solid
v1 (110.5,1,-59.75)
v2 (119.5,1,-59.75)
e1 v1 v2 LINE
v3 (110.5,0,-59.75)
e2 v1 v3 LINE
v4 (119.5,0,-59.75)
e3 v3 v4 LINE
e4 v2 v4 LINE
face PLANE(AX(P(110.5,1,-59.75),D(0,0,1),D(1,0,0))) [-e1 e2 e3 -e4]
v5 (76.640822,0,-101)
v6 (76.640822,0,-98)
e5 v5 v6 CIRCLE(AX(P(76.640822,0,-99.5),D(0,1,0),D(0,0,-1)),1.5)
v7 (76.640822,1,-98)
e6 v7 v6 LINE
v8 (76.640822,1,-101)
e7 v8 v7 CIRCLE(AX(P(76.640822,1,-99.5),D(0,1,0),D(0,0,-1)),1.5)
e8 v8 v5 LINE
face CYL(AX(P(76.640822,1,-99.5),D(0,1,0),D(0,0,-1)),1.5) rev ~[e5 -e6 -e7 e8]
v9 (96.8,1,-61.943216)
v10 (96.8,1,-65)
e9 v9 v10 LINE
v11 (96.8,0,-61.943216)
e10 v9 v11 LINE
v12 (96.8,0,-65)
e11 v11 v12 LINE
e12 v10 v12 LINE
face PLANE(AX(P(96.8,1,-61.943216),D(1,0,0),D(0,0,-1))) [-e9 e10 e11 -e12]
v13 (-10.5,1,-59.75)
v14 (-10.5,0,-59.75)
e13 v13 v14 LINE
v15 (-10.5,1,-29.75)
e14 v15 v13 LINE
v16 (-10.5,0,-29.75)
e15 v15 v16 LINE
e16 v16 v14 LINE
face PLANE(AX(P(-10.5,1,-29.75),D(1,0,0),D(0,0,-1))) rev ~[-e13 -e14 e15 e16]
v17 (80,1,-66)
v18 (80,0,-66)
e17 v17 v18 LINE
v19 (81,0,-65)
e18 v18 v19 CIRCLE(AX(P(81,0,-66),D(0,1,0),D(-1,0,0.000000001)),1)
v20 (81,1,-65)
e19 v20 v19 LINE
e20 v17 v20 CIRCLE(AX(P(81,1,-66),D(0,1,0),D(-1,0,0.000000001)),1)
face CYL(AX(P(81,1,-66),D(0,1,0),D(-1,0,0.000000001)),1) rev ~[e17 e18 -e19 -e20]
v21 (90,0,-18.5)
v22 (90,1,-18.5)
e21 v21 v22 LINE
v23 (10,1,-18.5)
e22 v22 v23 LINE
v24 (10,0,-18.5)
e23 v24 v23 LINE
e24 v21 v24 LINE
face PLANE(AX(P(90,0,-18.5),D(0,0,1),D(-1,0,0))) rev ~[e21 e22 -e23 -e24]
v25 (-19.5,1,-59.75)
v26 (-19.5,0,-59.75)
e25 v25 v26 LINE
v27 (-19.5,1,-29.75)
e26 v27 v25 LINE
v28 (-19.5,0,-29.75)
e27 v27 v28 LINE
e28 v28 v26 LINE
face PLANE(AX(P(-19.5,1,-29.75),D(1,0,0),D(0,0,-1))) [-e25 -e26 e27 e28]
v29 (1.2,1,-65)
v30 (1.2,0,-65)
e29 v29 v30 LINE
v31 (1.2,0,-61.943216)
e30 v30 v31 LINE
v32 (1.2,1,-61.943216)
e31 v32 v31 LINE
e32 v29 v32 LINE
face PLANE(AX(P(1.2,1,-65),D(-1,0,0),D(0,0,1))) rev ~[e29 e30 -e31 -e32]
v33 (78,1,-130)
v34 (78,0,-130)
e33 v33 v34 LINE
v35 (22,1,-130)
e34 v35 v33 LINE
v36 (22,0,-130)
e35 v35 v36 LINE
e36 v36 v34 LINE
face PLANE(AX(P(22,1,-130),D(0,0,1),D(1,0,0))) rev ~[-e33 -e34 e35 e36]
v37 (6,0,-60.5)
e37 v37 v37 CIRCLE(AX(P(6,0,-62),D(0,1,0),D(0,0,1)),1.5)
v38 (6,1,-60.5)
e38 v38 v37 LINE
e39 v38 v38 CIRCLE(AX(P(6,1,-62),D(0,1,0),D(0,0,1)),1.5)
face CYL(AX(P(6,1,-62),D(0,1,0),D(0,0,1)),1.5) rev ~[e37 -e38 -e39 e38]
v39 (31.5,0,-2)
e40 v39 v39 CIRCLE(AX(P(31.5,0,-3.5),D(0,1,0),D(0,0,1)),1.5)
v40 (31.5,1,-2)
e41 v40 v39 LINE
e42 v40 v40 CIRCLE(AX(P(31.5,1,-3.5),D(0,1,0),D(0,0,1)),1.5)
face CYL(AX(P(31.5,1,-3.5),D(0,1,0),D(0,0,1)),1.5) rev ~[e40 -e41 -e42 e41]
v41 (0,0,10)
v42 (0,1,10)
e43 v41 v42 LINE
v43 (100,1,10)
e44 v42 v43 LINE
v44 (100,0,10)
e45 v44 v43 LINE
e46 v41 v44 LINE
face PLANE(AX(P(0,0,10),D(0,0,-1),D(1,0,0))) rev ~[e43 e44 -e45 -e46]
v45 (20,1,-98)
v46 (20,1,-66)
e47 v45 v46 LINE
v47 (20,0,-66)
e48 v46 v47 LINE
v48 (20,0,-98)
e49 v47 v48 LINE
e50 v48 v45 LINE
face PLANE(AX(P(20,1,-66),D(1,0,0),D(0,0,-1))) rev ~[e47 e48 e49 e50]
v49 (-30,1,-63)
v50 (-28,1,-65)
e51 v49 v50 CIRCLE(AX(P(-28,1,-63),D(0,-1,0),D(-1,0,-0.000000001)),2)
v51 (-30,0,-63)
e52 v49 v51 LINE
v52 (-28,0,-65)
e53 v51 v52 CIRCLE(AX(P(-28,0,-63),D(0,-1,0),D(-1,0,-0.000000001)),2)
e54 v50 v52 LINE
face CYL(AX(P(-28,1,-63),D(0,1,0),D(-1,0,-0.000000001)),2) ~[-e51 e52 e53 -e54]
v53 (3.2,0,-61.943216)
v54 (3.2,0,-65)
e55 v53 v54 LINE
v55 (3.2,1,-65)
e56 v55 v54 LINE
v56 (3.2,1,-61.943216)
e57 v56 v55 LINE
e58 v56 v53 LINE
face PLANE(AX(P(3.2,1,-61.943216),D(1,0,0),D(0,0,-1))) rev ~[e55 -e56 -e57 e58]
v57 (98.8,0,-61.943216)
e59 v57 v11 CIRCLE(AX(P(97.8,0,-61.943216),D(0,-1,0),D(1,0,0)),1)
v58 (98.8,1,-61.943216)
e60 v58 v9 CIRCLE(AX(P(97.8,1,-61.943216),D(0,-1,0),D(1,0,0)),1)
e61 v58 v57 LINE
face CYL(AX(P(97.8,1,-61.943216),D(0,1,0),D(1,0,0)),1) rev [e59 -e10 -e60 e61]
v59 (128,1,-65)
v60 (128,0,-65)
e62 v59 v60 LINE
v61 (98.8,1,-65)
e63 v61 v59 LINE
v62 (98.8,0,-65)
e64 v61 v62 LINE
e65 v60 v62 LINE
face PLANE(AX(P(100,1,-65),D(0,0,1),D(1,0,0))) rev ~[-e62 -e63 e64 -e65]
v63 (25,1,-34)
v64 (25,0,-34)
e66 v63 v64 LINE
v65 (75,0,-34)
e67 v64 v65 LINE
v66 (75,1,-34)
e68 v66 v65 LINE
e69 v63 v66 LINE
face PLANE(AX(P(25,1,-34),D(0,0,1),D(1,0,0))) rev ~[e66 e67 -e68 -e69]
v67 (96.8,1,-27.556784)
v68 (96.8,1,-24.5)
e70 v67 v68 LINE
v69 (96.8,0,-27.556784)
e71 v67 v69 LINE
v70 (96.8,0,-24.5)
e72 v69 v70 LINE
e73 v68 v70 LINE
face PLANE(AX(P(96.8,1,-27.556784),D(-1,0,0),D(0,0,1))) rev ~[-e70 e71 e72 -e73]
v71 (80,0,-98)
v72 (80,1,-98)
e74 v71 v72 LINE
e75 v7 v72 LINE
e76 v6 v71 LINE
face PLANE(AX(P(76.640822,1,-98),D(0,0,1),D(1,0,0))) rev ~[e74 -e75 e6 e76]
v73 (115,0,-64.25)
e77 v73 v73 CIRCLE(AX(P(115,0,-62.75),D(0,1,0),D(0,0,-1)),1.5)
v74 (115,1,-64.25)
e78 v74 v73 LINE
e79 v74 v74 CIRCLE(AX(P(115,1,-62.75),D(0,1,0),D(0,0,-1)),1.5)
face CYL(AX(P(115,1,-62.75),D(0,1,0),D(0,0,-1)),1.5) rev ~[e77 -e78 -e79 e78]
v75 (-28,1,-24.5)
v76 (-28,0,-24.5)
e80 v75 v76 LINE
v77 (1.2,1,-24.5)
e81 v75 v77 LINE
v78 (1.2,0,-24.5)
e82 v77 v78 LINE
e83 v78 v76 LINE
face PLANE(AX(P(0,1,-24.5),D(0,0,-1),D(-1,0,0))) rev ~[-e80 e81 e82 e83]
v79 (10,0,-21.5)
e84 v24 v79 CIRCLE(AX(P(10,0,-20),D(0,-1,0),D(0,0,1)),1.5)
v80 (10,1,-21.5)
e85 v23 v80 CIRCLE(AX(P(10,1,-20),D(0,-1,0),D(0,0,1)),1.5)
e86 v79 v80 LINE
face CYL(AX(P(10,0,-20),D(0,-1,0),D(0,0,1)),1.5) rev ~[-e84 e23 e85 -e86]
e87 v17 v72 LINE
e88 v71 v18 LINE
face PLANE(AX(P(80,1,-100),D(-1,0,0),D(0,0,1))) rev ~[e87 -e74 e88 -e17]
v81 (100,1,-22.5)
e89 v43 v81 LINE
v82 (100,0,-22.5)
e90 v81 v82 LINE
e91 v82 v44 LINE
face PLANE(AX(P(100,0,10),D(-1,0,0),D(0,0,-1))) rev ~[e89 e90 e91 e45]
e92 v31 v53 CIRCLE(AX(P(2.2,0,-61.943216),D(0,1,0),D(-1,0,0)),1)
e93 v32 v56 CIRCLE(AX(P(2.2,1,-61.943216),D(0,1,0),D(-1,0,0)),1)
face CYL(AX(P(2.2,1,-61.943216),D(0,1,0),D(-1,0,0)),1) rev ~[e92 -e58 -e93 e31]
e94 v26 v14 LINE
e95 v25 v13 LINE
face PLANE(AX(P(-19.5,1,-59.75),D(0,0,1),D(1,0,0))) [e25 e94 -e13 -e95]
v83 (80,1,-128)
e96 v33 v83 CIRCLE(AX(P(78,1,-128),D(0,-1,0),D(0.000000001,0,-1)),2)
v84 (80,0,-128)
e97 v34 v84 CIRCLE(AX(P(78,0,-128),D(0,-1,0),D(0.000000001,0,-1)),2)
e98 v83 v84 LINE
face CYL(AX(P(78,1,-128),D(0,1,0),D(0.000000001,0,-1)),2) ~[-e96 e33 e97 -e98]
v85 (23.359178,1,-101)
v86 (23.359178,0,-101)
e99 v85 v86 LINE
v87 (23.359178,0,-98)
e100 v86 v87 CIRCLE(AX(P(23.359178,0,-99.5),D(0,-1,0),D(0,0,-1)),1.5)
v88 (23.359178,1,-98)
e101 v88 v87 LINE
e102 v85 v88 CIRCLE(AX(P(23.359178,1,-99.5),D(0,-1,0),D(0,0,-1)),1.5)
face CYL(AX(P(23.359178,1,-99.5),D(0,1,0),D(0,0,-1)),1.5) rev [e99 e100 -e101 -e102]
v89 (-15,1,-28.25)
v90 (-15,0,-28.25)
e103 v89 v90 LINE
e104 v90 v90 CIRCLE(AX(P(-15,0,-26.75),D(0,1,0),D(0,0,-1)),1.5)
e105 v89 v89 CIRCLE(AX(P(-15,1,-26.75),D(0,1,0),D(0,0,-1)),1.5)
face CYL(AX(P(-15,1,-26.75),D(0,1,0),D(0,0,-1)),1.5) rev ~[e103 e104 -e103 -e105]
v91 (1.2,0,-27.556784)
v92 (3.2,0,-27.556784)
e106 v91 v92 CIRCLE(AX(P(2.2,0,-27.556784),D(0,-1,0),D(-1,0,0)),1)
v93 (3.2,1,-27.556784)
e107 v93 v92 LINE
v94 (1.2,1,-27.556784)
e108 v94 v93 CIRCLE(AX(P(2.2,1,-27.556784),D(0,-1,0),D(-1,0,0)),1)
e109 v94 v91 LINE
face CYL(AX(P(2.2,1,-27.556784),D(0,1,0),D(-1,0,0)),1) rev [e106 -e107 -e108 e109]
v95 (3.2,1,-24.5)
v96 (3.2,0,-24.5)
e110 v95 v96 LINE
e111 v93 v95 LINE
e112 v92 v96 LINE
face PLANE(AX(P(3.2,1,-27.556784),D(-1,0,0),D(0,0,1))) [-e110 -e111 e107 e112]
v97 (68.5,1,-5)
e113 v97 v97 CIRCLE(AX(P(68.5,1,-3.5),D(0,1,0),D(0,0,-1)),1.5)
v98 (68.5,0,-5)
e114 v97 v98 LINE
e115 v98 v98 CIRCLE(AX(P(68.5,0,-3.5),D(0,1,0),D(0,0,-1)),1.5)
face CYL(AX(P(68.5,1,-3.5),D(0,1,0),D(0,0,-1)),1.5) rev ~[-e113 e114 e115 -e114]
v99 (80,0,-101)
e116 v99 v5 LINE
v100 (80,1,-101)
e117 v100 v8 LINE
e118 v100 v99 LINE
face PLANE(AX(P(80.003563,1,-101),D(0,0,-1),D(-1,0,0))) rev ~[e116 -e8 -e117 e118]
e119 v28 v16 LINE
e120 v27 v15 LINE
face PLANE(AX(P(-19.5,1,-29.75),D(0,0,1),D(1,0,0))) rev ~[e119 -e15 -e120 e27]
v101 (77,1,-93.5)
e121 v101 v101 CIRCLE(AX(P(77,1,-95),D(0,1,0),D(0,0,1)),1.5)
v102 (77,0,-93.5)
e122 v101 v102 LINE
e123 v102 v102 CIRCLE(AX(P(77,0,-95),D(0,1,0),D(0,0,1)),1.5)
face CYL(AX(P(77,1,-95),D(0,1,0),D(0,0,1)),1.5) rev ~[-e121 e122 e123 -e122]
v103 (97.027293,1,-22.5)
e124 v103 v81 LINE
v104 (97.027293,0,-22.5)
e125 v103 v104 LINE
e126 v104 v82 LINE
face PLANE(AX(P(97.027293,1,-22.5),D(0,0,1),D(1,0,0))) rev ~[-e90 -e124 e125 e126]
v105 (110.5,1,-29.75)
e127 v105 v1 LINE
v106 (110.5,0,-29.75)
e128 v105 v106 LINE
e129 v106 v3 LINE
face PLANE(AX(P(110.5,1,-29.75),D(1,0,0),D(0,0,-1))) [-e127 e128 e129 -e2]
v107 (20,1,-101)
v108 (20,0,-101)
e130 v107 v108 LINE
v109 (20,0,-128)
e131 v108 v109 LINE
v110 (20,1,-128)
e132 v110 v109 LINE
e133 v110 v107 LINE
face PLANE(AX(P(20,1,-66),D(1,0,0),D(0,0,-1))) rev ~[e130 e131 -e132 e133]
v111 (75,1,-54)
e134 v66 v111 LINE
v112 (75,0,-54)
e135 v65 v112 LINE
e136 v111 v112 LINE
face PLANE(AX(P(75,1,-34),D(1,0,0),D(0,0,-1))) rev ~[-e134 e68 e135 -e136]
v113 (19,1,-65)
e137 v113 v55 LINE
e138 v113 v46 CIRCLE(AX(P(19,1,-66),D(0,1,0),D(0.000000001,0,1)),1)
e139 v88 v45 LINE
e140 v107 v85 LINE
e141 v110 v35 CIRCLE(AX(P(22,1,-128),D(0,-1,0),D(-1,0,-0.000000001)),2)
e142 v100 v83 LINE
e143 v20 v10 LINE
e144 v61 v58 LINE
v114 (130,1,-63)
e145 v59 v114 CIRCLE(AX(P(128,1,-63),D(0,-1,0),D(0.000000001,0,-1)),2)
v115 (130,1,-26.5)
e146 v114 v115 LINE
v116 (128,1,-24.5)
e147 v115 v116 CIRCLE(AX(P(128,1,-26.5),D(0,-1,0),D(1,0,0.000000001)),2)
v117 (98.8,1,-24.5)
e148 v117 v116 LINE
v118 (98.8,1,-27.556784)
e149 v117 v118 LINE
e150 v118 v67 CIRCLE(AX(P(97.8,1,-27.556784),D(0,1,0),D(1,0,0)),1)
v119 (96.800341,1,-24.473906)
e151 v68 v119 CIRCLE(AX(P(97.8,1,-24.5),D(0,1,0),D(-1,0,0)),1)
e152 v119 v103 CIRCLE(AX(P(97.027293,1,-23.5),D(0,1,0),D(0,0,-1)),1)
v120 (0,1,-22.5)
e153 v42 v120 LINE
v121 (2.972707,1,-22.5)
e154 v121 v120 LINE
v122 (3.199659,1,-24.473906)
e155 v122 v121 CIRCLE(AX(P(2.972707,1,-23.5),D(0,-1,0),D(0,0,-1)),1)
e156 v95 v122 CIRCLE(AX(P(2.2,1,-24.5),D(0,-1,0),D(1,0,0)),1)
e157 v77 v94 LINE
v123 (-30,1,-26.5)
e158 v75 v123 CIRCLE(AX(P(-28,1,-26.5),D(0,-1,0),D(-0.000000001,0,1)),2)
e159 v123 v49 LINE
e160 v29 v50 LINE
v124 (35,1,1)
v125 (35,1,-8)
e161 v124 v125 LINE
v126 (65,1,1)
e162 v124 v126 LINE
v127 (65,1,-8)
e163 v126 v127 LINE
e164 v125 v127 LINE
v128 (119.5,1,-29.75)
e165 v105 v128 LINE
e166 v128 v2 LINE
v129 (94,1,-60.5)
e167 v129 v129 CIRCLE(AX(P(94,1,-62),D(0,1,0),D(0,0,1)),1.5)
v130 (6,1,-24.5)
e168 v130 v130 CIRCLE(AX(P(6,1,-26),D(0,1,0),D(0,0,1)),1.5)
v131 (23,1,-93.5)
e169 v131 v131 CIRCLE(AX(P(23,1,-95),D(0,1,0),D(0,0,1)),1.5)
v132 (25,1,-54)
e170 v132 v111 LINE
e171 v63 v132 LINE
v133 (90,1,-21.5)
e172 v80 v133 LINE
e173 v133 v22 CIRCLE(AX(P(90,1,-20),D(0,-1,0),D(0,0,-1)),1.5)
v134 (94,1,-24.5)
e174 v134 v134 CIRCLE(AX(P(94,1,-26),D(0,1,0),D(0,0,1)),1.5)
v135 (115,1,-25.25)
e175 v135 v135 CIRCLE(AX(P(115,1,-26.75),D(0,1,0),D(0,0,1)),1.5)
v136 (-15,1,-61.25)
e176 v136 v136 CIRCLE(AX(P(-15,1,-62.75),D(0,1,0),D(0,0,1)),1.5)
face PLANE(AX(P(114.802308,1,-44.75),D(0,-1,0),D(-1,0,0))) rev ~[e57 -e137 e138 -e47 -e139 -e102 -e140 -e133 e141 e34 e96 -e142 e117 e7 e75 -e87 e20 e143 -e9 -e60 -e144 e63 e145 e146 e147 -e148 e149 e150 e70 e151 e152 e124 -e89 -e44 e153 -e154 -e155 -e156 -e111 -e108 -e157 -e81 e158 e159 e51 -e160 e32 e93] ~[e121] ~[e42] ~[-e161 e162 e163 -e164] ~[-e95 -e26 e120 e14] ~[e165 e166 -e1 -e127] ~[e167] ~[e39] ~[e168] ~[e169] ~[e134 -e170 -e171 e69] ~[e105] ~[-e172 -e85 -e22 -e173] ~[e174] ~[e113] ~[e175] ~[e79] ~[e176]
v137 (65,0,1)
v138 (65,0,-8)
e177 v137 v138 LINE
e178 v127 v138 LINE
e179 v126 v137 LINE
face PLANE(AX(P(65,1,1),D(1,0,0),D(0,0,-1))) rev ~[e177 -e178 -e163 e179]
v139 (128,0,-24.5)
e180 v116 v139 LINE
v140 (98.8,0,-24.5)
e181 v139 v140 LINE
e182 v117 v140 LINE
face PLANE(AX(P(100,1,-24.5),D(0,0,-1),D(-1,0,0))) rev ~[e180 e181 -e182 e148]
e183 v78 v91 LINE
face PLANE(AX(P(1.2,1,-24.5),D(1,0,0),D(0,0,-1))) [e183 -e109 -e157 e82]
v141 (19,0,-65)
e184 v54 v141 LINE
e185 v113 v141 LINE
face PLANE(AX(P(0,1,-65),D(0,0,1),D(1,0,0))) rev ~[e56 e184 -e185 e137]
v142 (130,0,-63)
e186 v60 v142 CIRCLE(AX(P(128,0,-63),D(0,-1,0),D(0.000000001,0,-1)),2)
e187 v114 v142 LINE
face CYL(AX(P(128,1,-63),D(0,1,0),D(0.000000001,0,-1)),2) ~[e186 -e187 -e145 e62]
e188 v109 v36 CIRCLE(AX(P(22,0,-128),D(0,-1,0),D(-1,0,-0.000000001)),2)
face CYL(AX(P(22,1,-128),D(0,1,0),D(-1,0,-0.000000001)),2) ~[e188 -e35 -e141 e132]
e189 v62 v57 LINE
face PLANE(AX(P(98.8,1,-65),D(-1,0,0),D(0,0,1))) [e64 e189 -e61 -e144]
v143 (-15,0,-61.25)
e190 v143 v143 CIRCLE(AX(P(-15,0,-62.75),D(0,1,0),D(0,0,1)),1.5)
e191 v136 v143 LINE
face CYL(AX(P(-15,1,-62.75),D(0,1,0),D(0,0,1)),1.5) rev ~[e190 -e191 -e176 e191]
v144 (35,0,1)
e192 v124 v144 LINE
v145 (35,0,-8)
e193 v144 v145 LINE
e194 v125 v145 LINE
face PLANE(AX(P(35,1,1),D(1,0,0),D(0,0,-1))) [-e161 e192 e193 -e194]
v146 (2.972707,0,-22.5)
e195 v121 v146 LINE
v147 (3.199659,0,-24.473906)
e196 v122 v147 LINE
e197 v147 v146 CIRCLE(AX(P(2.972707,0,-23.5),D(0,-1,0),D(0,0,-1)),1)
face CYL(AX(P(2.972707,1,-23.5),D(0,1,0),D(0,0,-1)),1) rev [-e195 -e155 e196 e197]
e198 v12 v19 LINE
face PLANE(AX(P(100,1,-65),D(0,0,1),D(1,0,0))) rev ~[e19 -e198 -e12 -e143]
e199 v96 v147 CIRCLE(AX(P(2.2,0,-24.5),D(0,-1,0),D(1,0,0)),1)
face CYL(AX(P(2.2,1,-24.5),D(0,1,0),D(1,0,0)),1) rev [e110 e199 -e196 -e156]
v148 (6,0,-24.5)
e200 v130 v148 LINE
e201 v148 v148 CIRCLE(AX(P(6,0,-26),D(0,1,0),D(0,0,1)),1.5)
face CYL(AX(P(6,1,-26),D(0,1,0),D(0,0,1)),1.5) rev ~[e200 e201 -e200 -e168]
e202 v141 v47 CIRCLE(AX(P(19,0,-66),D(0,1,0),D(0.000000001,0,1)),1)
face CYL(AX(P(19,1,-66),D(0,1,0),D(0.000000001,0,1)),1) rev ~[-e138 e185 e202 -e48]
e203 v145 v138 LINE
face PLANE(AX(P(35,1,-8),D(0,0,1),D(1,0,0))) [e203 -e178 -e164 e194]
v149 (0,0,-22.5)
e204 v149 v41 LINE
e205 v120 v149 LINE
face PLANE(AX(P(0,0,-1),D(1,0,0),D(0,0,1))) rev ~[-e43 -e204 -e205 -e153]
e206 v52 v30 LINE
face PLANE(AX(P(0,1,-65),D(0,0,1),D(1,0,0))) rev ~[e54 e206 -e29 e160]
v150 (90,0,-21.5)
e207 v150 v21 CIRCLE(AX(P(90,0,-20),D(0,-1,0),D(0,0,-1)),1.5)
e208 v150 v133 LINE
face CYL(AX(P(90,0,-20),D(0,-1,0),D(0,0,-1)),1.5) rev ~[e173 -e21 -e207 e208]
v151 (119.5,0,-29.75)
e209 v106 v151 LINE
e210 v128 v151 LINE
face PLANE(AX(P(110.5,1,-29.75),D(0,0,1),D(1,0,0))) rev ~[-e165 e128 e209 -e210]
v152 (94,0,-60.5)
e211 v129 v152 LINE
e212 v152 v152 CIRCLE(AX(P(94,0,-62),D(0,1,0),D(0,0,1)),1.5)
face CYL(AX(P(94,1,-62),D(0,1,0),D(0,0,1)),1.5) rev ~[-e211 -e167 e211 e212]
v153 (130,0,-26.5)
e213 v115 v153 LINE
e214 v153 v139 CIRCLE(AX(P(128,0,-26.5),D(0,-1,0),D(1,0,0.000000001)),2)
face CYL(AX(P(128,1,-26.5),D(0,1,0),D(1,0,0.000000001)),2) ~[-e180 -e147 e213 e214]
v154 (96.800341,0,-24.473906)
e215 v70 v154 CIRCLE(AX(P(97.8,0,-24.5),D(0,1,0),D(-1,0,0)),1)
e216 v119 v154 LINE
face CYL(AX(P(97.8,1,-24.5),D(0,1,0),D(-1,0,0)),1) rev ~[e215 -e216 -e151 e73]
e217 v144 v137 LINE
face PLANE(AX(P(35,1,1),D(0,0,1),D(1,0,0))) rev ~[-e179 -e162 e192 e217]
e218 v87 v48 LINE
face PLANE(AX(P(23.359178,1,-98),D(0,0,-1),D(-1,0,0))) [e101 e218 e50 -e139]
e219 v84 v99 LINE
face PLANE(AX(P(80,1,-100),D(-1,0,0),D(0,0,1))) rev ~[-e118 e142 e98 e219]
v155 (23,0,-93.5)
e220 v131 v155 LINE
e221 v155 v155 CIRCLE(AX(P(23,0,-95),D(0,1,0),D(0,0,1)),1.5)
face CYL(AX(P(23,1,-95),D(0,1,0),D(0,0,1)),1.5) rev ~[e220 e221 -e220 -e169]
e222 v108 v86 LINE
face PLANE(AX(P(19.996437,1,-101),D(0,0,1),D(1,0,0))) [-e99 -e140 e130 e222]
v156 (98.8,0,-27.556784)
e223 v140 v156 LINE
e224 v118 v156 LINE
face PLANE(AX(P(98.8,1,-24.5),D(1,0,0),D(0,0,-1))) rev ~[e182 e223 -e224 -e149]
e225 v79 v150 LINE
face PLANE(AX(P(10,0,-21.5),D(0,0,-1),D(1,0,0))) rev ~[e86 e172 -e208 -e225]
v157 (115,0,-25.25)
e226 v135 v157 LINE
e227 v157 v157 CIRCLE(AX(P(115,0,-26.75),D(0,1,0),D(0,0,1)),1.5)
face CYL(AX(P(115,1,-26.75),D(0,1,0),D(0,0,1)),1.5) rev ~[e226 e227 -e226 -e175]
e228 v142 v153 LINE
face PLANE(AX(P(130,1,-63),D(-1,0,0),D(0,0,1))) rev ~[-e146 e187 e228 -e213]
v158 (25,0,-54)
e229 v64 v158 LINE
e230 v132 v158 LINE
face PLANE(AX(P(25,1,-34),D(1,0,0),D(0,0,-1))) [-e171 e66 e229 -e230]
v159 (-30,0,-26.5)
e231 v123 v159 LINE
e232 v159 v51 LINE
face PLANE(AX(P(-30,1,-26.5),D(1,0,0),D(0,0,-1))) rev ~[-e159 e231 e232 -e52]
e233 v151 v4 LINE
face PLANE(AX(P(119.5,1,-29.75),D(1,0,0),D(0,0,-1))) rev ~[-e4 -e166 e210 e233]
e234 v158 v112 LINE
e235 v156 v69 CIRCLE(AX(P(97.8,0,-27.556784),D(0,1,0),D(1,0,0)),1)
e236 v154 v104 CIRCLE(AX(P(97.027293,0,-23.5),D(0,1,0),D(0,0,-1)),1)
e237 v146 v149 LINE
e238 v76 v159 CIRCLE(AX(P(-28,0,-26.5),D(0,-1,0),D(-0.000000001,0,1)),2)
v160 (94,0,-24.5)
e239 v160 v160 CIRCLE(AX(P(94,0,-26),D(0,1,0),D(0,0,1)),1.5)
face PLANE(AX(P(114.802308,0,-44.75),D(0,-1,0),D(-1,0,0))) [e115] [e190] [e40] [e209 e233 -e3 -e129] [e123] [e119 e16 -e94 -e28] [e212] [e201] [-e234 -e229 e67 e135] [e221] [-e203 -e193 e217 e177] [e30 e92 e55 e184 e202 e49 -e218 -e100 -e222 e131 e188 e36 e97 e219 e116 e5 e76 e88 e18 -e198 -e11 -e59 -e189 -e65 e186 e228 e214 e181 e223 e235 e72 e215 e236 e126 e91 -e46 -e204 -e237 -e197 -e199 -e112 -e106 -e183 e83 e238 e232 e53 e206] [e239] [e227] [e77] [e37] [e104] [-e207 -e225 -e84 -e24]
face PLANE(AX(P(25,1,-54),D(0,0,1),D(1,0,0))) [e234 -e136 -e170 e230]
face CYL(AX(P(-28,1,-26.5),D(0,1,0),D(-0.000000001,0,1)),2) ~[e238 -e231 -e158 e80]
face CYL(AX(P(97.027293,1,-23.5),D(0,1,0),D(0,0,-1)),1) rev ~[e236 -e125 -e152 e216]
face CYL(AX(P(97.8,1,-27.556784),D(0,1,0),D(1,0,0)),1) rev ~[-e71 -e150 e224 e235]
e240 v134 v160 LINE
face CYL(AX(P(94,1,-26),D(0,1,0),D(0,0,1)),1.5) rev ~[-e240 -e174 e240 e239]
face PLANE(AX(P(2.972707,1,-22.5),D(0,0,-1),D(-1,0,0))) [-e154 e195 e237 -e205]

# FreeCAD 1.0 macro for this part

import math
import FreeCAD as App
import Part
import Sketcher
from FreeCAD import Vector


def add_polygon(sketch, points):
    """Adds a closed chain of lines whose ends are joined by coincident constraints."""
    first, n = sketch.GeometryCount, len(points)
    for a, b in zip(points, points[1:] + points[:1]):
        sketch.addGeometry(Part.LineSegment(App.Vector(*a, 0), App.Vector(*b, 0)), False)
    for i in range(n):
        sketch.addConstraint(Sketcher.Constraint("Coincident", first + i, 2, first + (i + 1) % n, 1))

doc = App.newDocument("Part")
body = doc.addObject("PartDesign::Body", "Body")

sketch1 = doc.addObject("Sketcher::SketchObject", "Sketch")
body.addObject(sketch1)
sketch1.AttachmentSupport = (doc.XZ_Plane, [""])
sketch1.MapMode = "FlatFace"
sketch1.addGeometry([
    Part.LineSegment(Vector(1, 0, 0), Vector(99, 0, 0)),
    Part.ArcOfCircle(Part.Circle(Vector(99, -1, 0), Vector(0, 0, 1), 1), math.radians(0), math.radians(90)),
    Part.LineSegment(Vector(100, -1, 0), Vector(100, -99, 0)),
    Part.ArcOfCircle(Part.Circle(Vector(99, -99, 0), Vector(0, 0, 1), 1), math.radians(-90), math.radians(0)),
    Part.LineSegment(Vector(99, -100, 0), Vector(1, -100, 0)),
    Part.ArcOfCircle(Part.Circle(Vector(1, -99, 0), Vector(0, 0, 1), 1), math.radians(-180), math.radians(-90)),
    Part.LineSegment(Vector(0, -99, 0), Vector(0, -1, 0)),
    Part.ArcOfCircle(Part.Circle(Vector(1, -1, 0), Vector(0, 0, 1), 1), math.radians(90), math.radians(180)),
    Part.ArcOfCircle(Part.Circle(Vector(10, -20, 0), Vector(0, 0, 1), 1.5), math.radians(90), math.radians(270)),
    Part.LineSegment(Vector(10, -21.5, 0), Vector(90, -21.5, 0)),
    Part.ArcOfCircle(Part.Circle(Vector(90, -20, 0), Vector(0, 0, 1), 1.5), math.radians(-90), math.radians(90)),
    Part.LineSegment(Vector(90, -18.5, 0), Vector(10, -18.5, 0)),
], False)
sketch1.addConstraint([
    Sketcher.Constraint("Tangent", 0, 2, 1, 2),
    Sketcher.Constraint("Tangent", 1, 1, 2, 1),
    Sketcher.Constraint("Tangent", 2, 2, 3, 2),
    Sketcher.Constraint("Tangent", 3, 1, 4, 1),
    Sketcher.Constraint("Tangent", 4, 2, 5, 2),
    Sketcher.Constraint("Tangent", 5, 1, 6, 1),
    Sketcher.Constraint("Tangent", 6, 2, 7, 2),
    Sketcher.Constraint("Tangent", 7, 1, 0, 1),
    Sketcher.Constraint("Tangent", 8, 2, 9, 1),
    Sketcher.Constraint("Tangent", 9, 2, 10, 1),
    Sketcher.Constraint("Tangent", 10, 2, 11, 1),
    Sketcher.Constraint("Tangent", 11, 2, 8, 1),
    Sketcher.Constraint("Horizontal", 0),
    Sketcher.Constraint("Vertical", 2),
    Sketcher.Constraint("Horizontal", 4),
    Sketcher.Constraint("Vertical", 6),
    Sketcher.Constraint("Horizontal", 9),
    Sketcher.Constraint("Horizontal", 11),
    Sketcher.Constraint("Equal", 1, 3),
    Sketcher.Constraint("Equal", 3, 5),
    Sketcher.Constraint("Equal", 5, 7),
    Sketcher.Constraint("PointOnObject", 0, 2, -1),
    Sketcher.Constraint("PointOnObject", 5, 1, -2),
    Sketcher.Constraint("Equal", 4, 2),
    Sketcher.Constraint("Radius", 1, 1.0),
    Sketcher.Constraint("Radius", 8, 1.5),
    Sketcher.Constraint("DistanceX", 0, 1, 0, 2, 98.0),
    Sketcher.Constraint("DistanceX", 9, 1, 9, 2, 80.0),
    Sketcher.Constraint("DistanceX", -1, 1, 8, 3, 10.0),
    Sketcher.Constraint("DistanceY", 8, 3, -1, 1, 20.0),
])
pad1 = doc.addObject("PartDesign::Pad", "Pad")
body.addObject(pad1)
pad1.Profile = sketch1
pad1.Length = 1
pad1.Reversed = True

sketch2 = doc.addObject("Sketcher::SketchObject", "Sketch001")
body.addObject(sketch2)
sketch2.AttachmentSupport = (doc.XZ_Plane, [""])
sketch2.MapMode = "FlatFace"
sketch2.AttachmentOffset = App.Placement(Vector(0, 0, -1), App.Rotation())
sketch2.addGeometry([
    Part.LineSegment(Vector(0, -100, 0), Vector(0, -65, 0)),
    Part.LineSegment(Vector(0, -65, 0), Vector(19, -65, 0)),
    Part.ArcOfCircle(Part.Circle(Vector(19, -66, 0), Vector(0, 0, 1), 1), math.radians(0), math.radians(90)),
    Part.LineSegment(Vector(20, -66, 0), Vector(20, -100, 0)),
    Part.LineSegment(Vector(20, -100, 0), Vector(0, -100, 0)),
    Part.LineSegment(Vector(100, -65, 0), Vector(100, -100, 0)),
    Part.LineSegment(Vector(100, -100, 0), Vector(80, -100, 0)),
    Part.LineSegment(Vector(80, -100, 0), Vector(80, -66, 0)),
    Part.ArcOfCircle(Part.Circle(Vector(81, -66, 0), Vector(0, 0, 1), 1), math.radians(90), math.radians(180)),
    Part.LineSegment(Vector(81, -65, 0), Vector(100, -65, 0)),
], False)
sketch2.addConstraint([
    Sketcher.Constraint("Coincident", 0, 2, 1, 1),
    Sketcher.Constraint("Tangent", 1, 2, 2, 2),
    Sketcher.Constraint("Tangent", 2, 1, 3, 1),
    Sketcher.Constraint("Coincident", 3, 2, 4, 1),
    Sketcher.Constraint("Coincident", 4, 2, 0, 1),
    Sketcher.Constraint("Coincident", 5, 2, 6, 1),
    Sketcher.Constraint("Coincident", 6, 2, 7, 1),
    Sketcher.Constraint("Tangent", 7, 2, 8, 2),
    Sketcher.Constraint("Tangent", 8, 1, 9, 1),
    Sketcher.Constraint("Coincident", 9, 2, 5, 1),
    Sketcher.Constraint("Vertical", 0),
    Sketcher.Constraint("Horizontal", 1),
    Sketcher.Constraint("Vertical", 3),
    Sketcher.Constraint("Horizontal", 4),
    Sketcher.Constraint("Vertical", 5),
    Sketcher.Constraint("Horizontal", 6),
    Sketcher.Constraint("Vertical", 7),
    Sketcher.Constraint("Horizontal", 9),
    Sketcher.Constraint("Equal", 2, 8),
    Sketcher.Constraint("PointOnObject", 0, 2, -2),
    Sketcher.Constraint("Horizontal", 2, 3, 8, 3),
    Sketcher.Constraint("Horizontal", 4, 2, 5, 2),
    Sketcher.Constraint("Equal", 4, 6),
    Sketcher.Constraint("Radius", 2, 1.0),
    Sketcher.Constraint("DistanceX", 1, 1, 1, 2, 19.0),
    Sketcher.Constraint("DistanceY", 0, 1, 0, 2, 35.0),
    Sketcher.Constraint("DistanceY", 2, 3, -1, 1, 66.0),
    Sketcher.Constraint("DistanceX", -1, 1, 8, 3, 81.0),
])
pocket1 = doc.addObject("PartDesign::Pocket", "Pocket")
body.addObject(pocket1)
pocket1.Profile = sketch2
pocket1.Length = 1
pocket1.Reversed = True

sketch3 = doc.addObject("Sketcher::SketchObject", "Sketch002")
body.addObject(sketch3)
sketch3.AttachmentSupport = (doc.XZ_Plane, [""])
sketch3.MapMode = "FlatFace"
sketch3.AttachmentOffset = App.Placement(Vector(0, 0, -1), App.Rotation())
sketch3.addGeometry([
    Part.Circle(Vector(6, -26, 0), Vector(0, 0, 1), 1.5),
    Part.Circle(Vector(23, -95, 0), Vector(0, 0, 1), 1.5),
    Part.Circle(Vector(77, -95, 0), Vector(0, 0, 1), 1.5),
    Part.Circle(Vector(94, -26, 0), Vector(0, 0, 1), 1.5),
    Part.Circle(Vector(6, -62, 0), Vector(0, 0, 1), 1.5),
    Part.Circle(Vector(94, -62, 0), Vector(0, 0, 1), 1.5),
], False)
sketch3.addConstraint([
    Sketcher.Constraint("Equal", 0, 1),
    Sketcher.Constraint("Equal", 1, 2),
    Sketcher.Constraint("Equal", 2, 3),
    Sketcher.Constraint("Equal", 3, 4),
    Sketcher.Constraint("Equal", 4, 5),
    Sketcher.Constraint("Horizontal", 1, 3, 2, 3),
    Sketcher.Constraint("Horizontal", 0, 3, 3, 3),
    Sketcher.Constraint("Horizontal", 4, 3, 5, 3),
    Sketcher.Constraint("Vertical", 0, 3, 4, 3),
    Sketcher.Constraint("Vertical", 3, 3, 5, 3),
    Sketcher.Constraint("Diameter", 0, 3.0),
    Sketcher.Constraint("DistanceX", -1, 1, 0, 3, 6.0),
    Sketcher.Constraint("DistanceY", 0, 3, -1, 1, 26.0),
    Sketcher.Constraint("DistanceX", -1, 1, 1, 3, 23.0),
    Sketcher.Constraint("DistanceY", 1, 3, -1, 1, 95.0),
    Sketcher.Constraint("DistanceX", -1, 1, 2, 3, 77.0),
    Sketcher.Constraint("DistanceX", -1, 1, 3, 3, 94.0),
    Sketcher.Constraint("DistanceY", 4, 3, -1, 1, 62.0),
])
pocket2 = doc.addObject("PartDesign::Pocket", "Pocket001")
body.addObject(pocket2)
pocket2.Profile = sketch3
pocket2.Length = 1
pocket2.Reversed = True

sketch4 = doc.addObject("Sketcher::SketchObject", "Sketch003")
body.addObject(sketch4)
sketch4.AttachmentSupport = (doc.XZ_Plane, [""])
sketch4.MapMode = "FlatFace"
sketch4.addGeometry([
    Part.LineSegment(Vector(0, -1, 0), Vector(0, 10, 0)),
    Part.LineSegment(Vector(0, 10, 0), Vector(100, 10, 0)),
    Part.LineSegment(Vector(100, 10, 0), Vector(100, -1, 0)),
    Part.ArcOfCircle(Part.Circle(Vector(99, -1, 0), Vector(0, 0, 1), 1), math.radians(0), math.radians(90)),
    Part.LineSegment(Vector(99, 0, 0), Vector(1, 0, 0)),
    Part.ArcOfCircle(Part.Circle(Vector(1, -1, 0), Vector(0, 0, 1), 1), math.radians(90), math.radians(180)),
], False)
sketch4.addConstraint([
    Sketcher.Constraint("Coincident", 0, 2, 1, 1),
    Sketcher.Constraint("Coincident", 1, 2, 2, 1),
    Sketcher.Constraint("Tangent", 2, 2, 3, 1),
    Sketcher.Constraint("Tangent", 3, 2, 4, 1),
    Sketcher.Constraint("Tangent", 4, 2, 5, 1),
    Sketcher.Constraint("Tangent", 5, 2, 0, 1),
    Sketcher.Constraint("Vertical", 0),
    Sketcher.Constraint("Horizontal", 1),
    Sketcher.Constraint("Vertical", 2),
    Sketcher.Constraint("Horizontal", 4),
    Sketcher.Constraint("Equal", 3, 5),
    Sketcher.Constraint("PointOnObject", 0, 2, -2),
    Sketcher.Constraint("PointOnObject", 3, 2, -1),
    Sketcher.Constraint("Radius", 3, 1.0),
    Sketcher.Constraint("DistanceX", 1, 1, 1, 2, 100.0),
    Sketcher.Constraint("DistanceY", 0, 1, 0, 2, 11.0),
])
pad2 = doc.addObject("PartDesign::Pad", "Pad001")
body.addObject(pad2)
pad2.Profile = sketch4
pad2.Length = 1
pad2.Reversed = True

sketch5 = doc.addObject("Sketcher::SketchObject", "Sketch004")
body.addObject(sketch5)
sketch5.AttachmentSupport = (doc.XZ_Plane, [""])
sketch5.MapMode = "FlatFace"
sketch5.AttachmentOffset = App.Placement(Vector(0, 0, -1), App.Rotation())
sketch5.addGeometry([
    Part.LineSegment(Vector(128, -65, 0), Vector(100, -65, 0)),
    Part.LineSegment(Vector(100, -65, 0), Vector(100, -24.5, 0)),
    Part.LineSegment(Vector(100, -24.5, 0), Vector(128, -24.5, 0)),
    Part.ArcOfCircle(Part.Circle(Vector(128, -26.5, 0), Vector(0, 0, 1), 2), math.radians(0), math.radians(90)),
    Part.LineSegment(Vector(130, -26.5, 0), Vector(130, -63, 0)),
    Part.ArcOfCircle(Part.Circle(Vector(128, -63, 0), Vector(0, 0, 1), 2), math.radians(-90), math.radians(0)),
    Part.LineSegment(Vector(-28, -24.5, 0), Vector(0, -24.5, 0)),
    Part.LineSegment(Vector(0, -24.5, 0), Vector(0, -65, 0)),
    Part.LineSegment(Vector(0, -65, 0), Vector(-28, -65, 0)),
    Part.ArcOfCircle(Part.Circle(Vector(-28, -63, 0), Vector(0, 0, 1), 2), math.radians(-180), math.radians(-90)),
    Part.LineSegment(Vector(-30, -63, 0), Vector(-30, -26.5, 0)),
    Part.ArcOfCircle(Part.Circle(Vector(-28, -26.5, 0), Vector(0, 0, 1), 2), math.radians(90), math.radians(180)),
    Part.LineSegment(Vector(20, -100, 0), Vector(80, -100, 0)),
    Part.LineSegment(Vector(80, -100, 0), Vector(80, -128, 0)),
    Part.ArcOfCircle(Part.Circle(Vector(78, -128, 0), Vector(0, 0, 1), 2), math.radians(-90), math.radians(0)),
    Part.LineSegment(Vector(78, -130, 0), Vector(22, -130, 0)),
    Part.ArcOfCircle(Part.Circle(Vector(22, -128, 0), Vector(0, 0, 1), 2), math.radians(-180), math.radians(-90)),
    Part.LineSegment(Vector(20, -128, 0), Vector(20, -100, 0)),
], False)
sketch5.addConstraint([
    Sketcher.Constraint("Coincident", 0, 2, 1, 1),
    Sketcher.Constraint("Coincident", 1, 2, 2, 1),
    Sketcher.Constraint("Tangent", 2, 2, 3, 2),
    Sketcher.Constraint("Tangent", 3, 1, 4, 1),
    Sketcher.Constraint("Tangent", 4, 2, 5, 2),
    Sketcher.Constraint("Tangent", 5, 1, 0, 1),
    Sketcher.Constraint("Coincident", 6, 2, 7, 1),
    Sketcher.Constraint("Coincident", 7, 2, 8, 1),
    Sketcher.Constraint("Tangent", 8, 2, 9, 2),
    Sketcher.Constraint("Tangent", 9, 1, 10, 1),
    Sketcher.Constraint("Tangent", 10, 2, 11, 2),
    Sketcher.Constraint("Tangent", 11, 1, 6, 1),
    Sketcher.Constraint("Coincident", 12, 2, 13, 1),
    Sketcher.Constraint("Tangent", 13, 2, 14, 2),
    Sketcher.Constraint("Tangent", 14, 1, 15, 1),
    Sketcher.Constraint("Tangent", 15, 2, 16, 2),
    Sketcher.Constraint("Tangent", 16, 1, 17, 1),
    Sketcher.Constraint("Coincident", 17, 2, 12, 1),
    Sketcher.Constraint("Horizontal", 0),
    Sketcher.Constraint("Vertical", 1),
    Sketcher.Constraint("Horizontal", 2),
    Sketcher.Constraint("Vertical", 4),
    Sketcher.Constraint("Horizontal", 6),
    Sketcher.Constraint("Vertical", 7),
    Sketcher.Constraint("Horizontal", 8),
    Sketcher.Constraint("Vertical", 10),
    Sketcher.Constraint("Horizontal", 12),
    Sketcher.Constraint("Vertical", 13),
    Sketcher.Constraint("Horizontal", 15),
    Sketcher.Constraint("Vertical", 17),
    Sketcher.Constraint("Equal", 3, 5),
    Sketcher.Constraint("Equal", 5, 9),
    Sketcher.Constraint("Equal", 9, 11),
    Sketcher.Constraint("Equal", 11, 14),
    Sketcher.Constraint("Equal", 14, 16),
    Sketcher.Constraint("PointOnObject", 6, 2, -2),
    Sketcher.Constraint("Horizontal", 5, 3, 9, 3),
    Sketcher.Constraint("Horizontal", 3, 3, 11, 3),
    Sketcher.Constraint("Equal", 2, 6),
    Sketcher.Constraint("Equal", 8, 13),
    Sketcher.Constraint("Radius", 3, 2.0),
    Sketcher.Constraint("DistanceX", 0, 2, 0, 1, 28.0),
    Sketcher.Constraint("DistanceX", 12, 1, 12, 2, 60.0),
    Sketcher.Constraint("DistanceY", 1, 1, 1, 2, 40.5),
    Sketcher.Constraint("DistanceX", -1, 1, 3, 3, 128.0),
    Sketcher.Constraint("DistanceY", 5, 3, -1, 1, 63.0),
    Sketcher.Constraint("DistanceX", -1, 1, 14, 3, 78.0),
    Sketcher.Constraint("DistanceY", 14, 3, -1, 1, 128.0),
])
pad3 = doc.addObject("PartDesign::Pad", "Pad002")
body.addObject(pad3)
pad3.Profile = sketch5
pad3.Length = 1

sketch6 = doc.addObject("Sketcher::SketchObject", "Sketch005")
body.addObject(sketch6)
sketch6.AttachmentSupport = (doc.XZ_Plane, [""])
sketch6.MapMode = "FlatFace"
sketch6.AttachmentOffset = App.Placement(Vector(0, 0, -1), App.Rotation())
sketch6.addGeometry(Part.Circle(Vector(31.5, -3.5, 0), Vector(0, 0, 1), 1.5), False)
sketch6.addGeometry(Part.Circle(Vector(-15, -62.8, 0), Vector(0, 0, 1), 1.5), False)
sketch6.addGeometry(Part.Circle(Vector(-15, -26.8, 0), Vector(0, 0, 1), 1.5), False)
sketch6.addGeometry(Part.Circle(Vector(68.5, -3.5, 0), Vector(0, 0, 1), 1.5), False)
sketch6.addGeometry(Part.Circle(Vector(115, -26.8, 0), Vector(0, 0, 1), 1.5), False)
sketch6.addGeometry(Part.Circle(Vector(115, -62.8, 0), Vector(0, 0, 1), 1.5), False)
add_polygon(sketch6, [(110.5, -59.8), (110.5, -29.8), (119.5, -29.8), (119.5, -59.8)])
add_polygon(sketch6, [(-19.5, -59.8), (-19.5, -29.8), (-10.5, -29.8), (-10.5, -59.8)])
add_polygon(sketch6, [(35, -8), (35, 1), (65, 1), (65, -8)])
sketch6.addConstraint([
    Sketcher.Constraint("Vertical", 6),
    Sketcher.Constraint("Horizontal", 7),
    Sketcher.Constraint("Vertical", 8),
    Sketcher.Constraint("Horizontal", 9),
    Sketcher.Constraint("Vertical", 10),
    Sketcher.Constraint("Horizontal", 11),
    Sketcher.Constraint("Vertical", 12),
    Sketcher.Constraint("Horizontal", 13),
    Sketcher.Constraint("Vertical", 14),
    Sketcher.Constraint("Horizontal", 15),
    Sketcher.Constraint("Vertical", 16),
    Sketcher.Constraint("Horizontal", 17),
    Sketcher.Constraint("Equal", 0, 1),
    Sketcher.Constraint("Equal", 1, 2),
    Sketcher.Constraint("Equal", 2, 3),
    Sketcher.Constraint("Equal", 3, 4),
    Sketcher.Constraint("Equal", 4, 5),
    Sketcher.Constraint("Horizontal", 0, 3, 3, 3),
    Sketcher.Constraint("Horizontal", 2, 3, 4, 3),
    Sketcher.Constraint("Horizontal", 1, 3, 5, 3),
    Sketcher.Constraint("Horizontal", 7, 2, 10, 2),
    Sketcher.Constraint("Horizontal", 9, 2, 12, 2),
    Sketcher.Constraint("Vertical", 1, 3, 2, 3),
    Sketcher.Constraint("Vertical", 4, 3, 5, 3),
    Sketcher.Constraint("Equal", 9, 11),
    Sketcher.Constraint("Equal", 17, 6),
    Sketcher.Constraint("Equal", 13, 14),
    Sketcher.Constraint("Diameter", 0, 3.0),
    Sketcher.Constraint("DistanceX", 7, 1, 7, 2, 9.0),
    Sketcher.Constraint("DistanceX", 15, 1, 15, 2, 30.0),
    Sketcher.Constraint("DistanceX", 1, 3, -1, 1, 15.0),
    Sketcher.Constraint("DistanceX", -1, 1, 4, 3, 115.0),
    Sketcher.Constraint("DistanceX", -1, 1, 14, 2, 35.0),
    Sketcher.Constraint("DistanceY", -1, 1, 14, 2, 1.0),
    Sketcher.Constraint("DistanceY", 1, 3, 2, 3, 36.0),
    Sketcher.Constraint("DistanceX", 0, 3, 3, 3, 37.0),
    Sketcher.Constraint("DistanceY", 6, 2, 4, 3, 3.0),
    Sketcher.Constraint("DistanceX", 3, 3, 6, 2, 42.0),
    Sketcher.Constraint("DistanceX", 10, 2, 0, 3, 51.0),
    Sketcher.Constraint("DistanceX", -1, 1, 0, 3, 31.5),
    Sketcher.Constraint("DistanceY", 0, 3, -1, 1, 3.5),
    Sketcher.Constraint("DistanceY", 1, 3, -1, 1, 62.75),
])
pocket3 = doc.addObject("PartDesign::Pocket", "Pocket002")
body.addObject(pocket3)
pocket3.Profile = sketch6
pocket3.Length = 1
pocket3.Reversed = True

sketch7 = doc.addObject("Sketcher::SketchObject", "Sketch006")
body.addObject(sketch7)
sketch7.AttachmentSupport = (doc.XZ_Plane, [""])
sketch7.MapMode = "FlatFace"
sketch7.AttachmentOffset = App.Placement(Vector(0, 0, -1), App.Rotation())
sketch7.addGeometry([
    Part.ArcOfCircle(Part.Circle(Vector(0, -23.5, 0), Vector(0, 0, 1), 1), math.radians(90), math.radians(270)),
    Part.LineSegment(Vector(0, -22.5, 0), Vector(2.973, -22.5, 0)),
    Part.ArcOfCircle(Part.Circle(Vector(2.973, -23.5, 0), Vector(0, 0, 1), 1), math.radians(-77), math.radians(90)),
    Part.ArcOfCircle(Part.Circle(Vector(2.2, -24.5, 0), Vector(0, 0, 1), 1), math.radians(0), math.radians(1.5)),
    Part.LineSegment(Vector(3.2, -24.5, 0), Vector(3.2, -27.557, 0)),
    Part.ArcOfCircle(Part.Circle(Vector(2.2, -27.557, 0), Vector(0, 0, 1), 1), math.radians(180), math.radians(360)),
    Part.LineSegment(Vector(1.2, -27.557, 0), Vector(1.2, -24.5, 0)),
    Part.LineSegment(Vector(1.2, -24.5, 0), Vector(0, -24.5, 0)),
    Part.LineSegment(Vector(23.359, -101, 0), Vector(19.996, -101, 0)),
    Part.ArcOfCircle(Part.Circle(Vector(19.996, -99.5, 0), Vector(0, 0, 1), 1.5), math.radians(90), math.radians(270)),
    Part.LineSegment(Vector(19.996, -98, 0), Vector(23.359, -98, 0)),
    Part.ArcOfCircle(Part.Circle(Vector(23.359, -99.5, 0), Vector(0, 0, 1), 1.5), math.radians(-90), math.radians(90)),
    Part.LineSegment(Vector(1.2, -65, 0), Vector(1.2, -61.943, 0)),
    Part.ArcOfCircle(Part.Circle(Vector(2.2, -61.943, 0), Vector(0, 0, 1), 1), math.radians(0), math.radians(180)),
    Part.LineSegment(Vector(3.2, -61.943, 0), Vector(3.2, -65, 0)),
    Part.ArcOfCircle(Part.Circle(Vector(2.2, -65, 0), Vector(0, 0, 1), 1), math.radians(180), math.radians(360)),
    Part.LineSegment(Vector(80.004, -101, 0), Vector(76.641, -101, 0)),
    Part.ArcOfCircle(Part.Circle(Vector(76.641, -99.5, 0), Vector(0, 0, 1), 1.5), math.radians(90), math.radians(270)),
    Part.LineSegment(Vector(76.641, -98, 0), Vector(80.004, -98, 0)),
    Part.ArcOfCircle(Part.Circle(Vector(80.004, -99.5, 0), Vector(0, 0, 1), 1.5), math.radians(-90), math.radians(90)),
    Part.ArcOfCircle(Part.Circle(Vector(97.8, -24.5, 0), Vector(0, 0, 1), 1), math.radians(178.5), math.radians(180)),
    Part.ArcOfCircle(Part.Circle(Vector(97.027, -23.5, 0), Vector(0, 0, 1), 1), math.radians(90), math.radians(257)),
    Part.LineSegment(Vector(97.027, -22.5, 0), Vector(100, -22.5, 0)),
    Part.ArcOfCircle(Part.Circle(Vector(100, -23.5, 0), Vector(0, 0, 1), 1), math.radians(-90), math.radians(90)),
    Part.LineSegment(Vector(100, -24.5, 0), Vector(98.8, -24.5, 0)),
    Part.LineSegment(Vector(98.8, -24.5, 0), Vector(98.8, -27.557, 0)),
    Part.ArcOfCircle(Part.Circle(Vector(97.8, -27.557, 0), Vector(0, 0, 1), 1), math.radians(180), math.radians(360)),
    Part.LineSegment(Vector(96.8, -27.557, 0), Vector(96.8, -24.5, 0)),
    Part.LineSegment(Vector(98.8, -61.943, 0), Vector(98.8, -65, 0)),
    Part.ArcOfCircle(Part.Circle(Vector(97.8, -65, 0), Vector(0, 0, 1), 1), math.radians(180), math.radians(360)),
    Part.LineSegment(Vector(96.8, -65, 0), Vector(96.8, -61.943, 0)),
    Part.ArcOfCircle(Part.Circle(Vector(97.8, -61.943, 0), Vector(0, 0, 1), 1), math.radians(0), math.radians(180)),
], False)
sketch7.addConstraint([
    Sketcher.Constraint("Tangent", 0, 1, 1, 1),
    Sketcher.Constraint("Tangent", 1, 2, 2, 2),
    Sketcher.Constraint("Coincident", 2, 1, 3, 2),
    Sketcher.Constraint("Tangent", 3, 1, 4, 1),
    Sketcher.Constraint("Tangent", 4, 2, 5, 2),
    Sketcher.Constraint("Tangent", 5, 1, 6, 1),
    Sketcher.Constraint("Coincident", 6, 2, 7, 1),
    Sketcher.Constraint("Tangent", 7, 2, 0, 2),
    Sketcher.Constraint("Tangent", 8, 2, 9, 2),
    Sketcher.Constraint("Tangent", 9, 1, 10, 1),
    Sketcher.Constraint("Tangent", 10, 2, 11, 2),
    Sketcher.Constraint("Tangent", 11, 1, 8, 1),
    Sketcher.Constraint("Tangent", 12, 2, 13, 2),
    Sketcher.Constraint("Tangent", 13, 1, 14, 1),
    Sketcher.Constraint("Tangent", 14, 2, 15, 2),
    Sketcher.Constraint("Tangent", 15, 1, 12, 1),
    Sketcher.Constraint("Tangent", 16, 2, 17, 2),
    Sketcher.Constraint("Tangent", 17, 1, 18, 1),
    Sketcher.Constraint("Tangent", 18, 2, 19, 2),
    Sketcher.Constraint("Tangent", 19, 1, 16, 1),
    Sketcher.Constraint("Coincident", 20, 1, 21, 2),
    Sketcher.Constraint("Tangent", 21, 1, 22, 1),
    Sketcher.Constraint("Tangent", 22, 2, 23, 2),
    Sketcher.Constraint("Tangent", 23, 1, 24, 1),
    Sketcher.Constraint("Coincident", 24, 2, 25, 1),
    Sketcher.Constraint("Tangent", 25, 2, 26, 2),
    Sketcher.Constraint("Tangent", 26, 1, 27, 1),
    Sketcher.Constraint("Tangent", 27, 2, 20, 2),
    Sketcher.Constraint("Tangent", 28, 2, 29, 2),
    Sketcher.Constraint("Tangent", 29, 1, 30, 1),
    Sketcher.Constraint("Tangent", 30, 2, 31, 2),
    Sketcher.Constraint("Tangent", 31, 1, 28, 1),
    Sketcher.Constraint("Horizontal", 1),
    Sketcher.Constraint("Vertical", 4),
    Sketcher.Constraint("Vertical", 6),
    Sketcher.Constraint("Horizontal", 7),
    Sketcher.Constraint("Horizontal", 8),
    Sketcher.Constraint("Horizontal", 10),
    Sketcher.Constraint("Vertical", 12),
    Sketcher.Constraint("Vertical", 14),
    Sketcher.Constraint("Horizontal", 16),
    Sketcher.Constraint("Horizontal", 18),
    Sketcher.Constraint("Horizontal", 22),
    Sketcher.Constraint("Horizontal", 24),
    Sketcher.Constraint("Vertical", 25),
    Sketcher.Constraint("Vertical", 27),
    Sketcher.Constraint("Vertical", 28),
    Sketcher.Constraint("Vertical", 30),
    Sketcher.Constraint("Equal", 0, 2),
    Sketcher.Constraint("Equal", 2, 3),
    Sketcher.Constraint("Equal", 3, 5),
    Sketcher.Constraint("Equal", 5, 13),
    Sketcher.Constraint("Equal", 11, 17),
    Sketcher.Constraint("Equal", 15, 20),
    Sketcher.Constraint("Equal", 20, 21),
    Sketcher.Constraint("Equal", 21, 23),
    Sketcher.Constraint("Equal", 23, 26),
    Sketcher.Constraint("Equal", 26, 29),
    Sketcher.Constraint("PointOnObject", 0, 3, -2),
    Sketcher.Constraint("Horizontal", 11, 3, 17, 3),
    Sketcher.Constraint("Horizontal", 3, 3, 20, 3),
    Sketcher.Constraint("Horizontal", 2, 3, 21, 3),
    Sketcher.Constraint("Horizontal", 5, 3, 26, 3),
    Sketcher.Constraint("Horizontal", 15, 3, 29, 3),
    Sketcher.Constraint("Horizontal", 13, 3, 31, 3),
    Sketcher.Constraint("Horizontal", 3, 1, 6, 2),
    Sketcher.Constraint("Horizontal", 2, 1, 20, 1),
    Sketcher.Constraint("Vertical", 5, 3, 13, 3),
    Sketcher.Constraint("Vertical", 26, 3, 29, 3),
    Sketcher.Constraint("Equal", 10, 16),
    Sketcher.Constraint("Equal", 1, 22),
    Sketcher.Constraint("Equal", 6, 12),
    Sketcher.Constraint("Radius", 0, 1.0),
    Sketcher.Constraint("Radius", 9, 1.5),
    Sketcher.Constraint("DistanceX", 7, 2, 7, 1, 1.2),
    Sketcher.Constraint("DistanceY", 15, 3, -1, 1, 65.0),
    Sketcher.Constraint("DistanceX", -1, 1, 23, 3, 100.0),
    Sketcher.Constraint("DistanceY", 8, 2, -1, 1, 101.0),
    Sketcher.Constraint("DistanceY", 9, 3, 3, 3, 75.0),
    Sketcher.Constraint("DistanceX", 8, 2, 8, 1, 3.362741),
    Sketcher.Constraint("DistanceX", 1, 1, 1, 2, 2.972707),
    Sketcher.Constraint("DistanceY", 4, 2, 4, 1, 3.056784),
    Sketcher.Constraint("DistanceX", -1, 1, 11, 3, 23.359178),
    Sketcher.Constraint("DistanceX", -1, 1, 17, 3, 76.640822),
])
pocket4 = doc.addObject("PartDesign::Pocket", "Pocket003")
body.addObject(pocket4)
pocket4.Profile = sketch7
pocket4.Length = 1
pocket4.Reversed = True

sketch8 = doc.addObject("Sketcher::SketchObject", "Sketch007")
body.addObject(sketch8)
sketch8.AttachmentSupport = (doc.XZ_Plane, [""])
sketch8.MapMode = "FlatFace"
sketch8.AttachmentOffset = App.Placement(Vector(0, 0, -1), App.Rotation())
add_polygon(sketch8, [(25, -54), (25, -34), (75, -34), (75, -54)])
sketch8.addConstraint([
    Sketcher.Constraint("Vertical", 0),
    Sketcher.Constraint("Horizontal", 1),
    Sketcher.Constraint("Vertical", 2),
    Sketcher.Constraint("Horizontal", 3),
    Sketcher.Constraint("DistanceX", 1, 1, 1, 2, 50.0),
    Sketcher.Constraint("DistanceY", 0, 1, 0, 2, 20.0),
    Sketcher.Constraint("DistanceX", -1, 1, 0, 2, 25.0),
    Sketcher.Constraint("DistanceY", 0, 2, -1, 1, 34.0),
])
pocket5 = doc.addObject("PartDesign::Pocket", "Pocket004")
body.addObject(pocket5)
pocket5.Profile = sketch8
pocket5.Length = 1
pocket5.Reversed = True

doc.recompute()
